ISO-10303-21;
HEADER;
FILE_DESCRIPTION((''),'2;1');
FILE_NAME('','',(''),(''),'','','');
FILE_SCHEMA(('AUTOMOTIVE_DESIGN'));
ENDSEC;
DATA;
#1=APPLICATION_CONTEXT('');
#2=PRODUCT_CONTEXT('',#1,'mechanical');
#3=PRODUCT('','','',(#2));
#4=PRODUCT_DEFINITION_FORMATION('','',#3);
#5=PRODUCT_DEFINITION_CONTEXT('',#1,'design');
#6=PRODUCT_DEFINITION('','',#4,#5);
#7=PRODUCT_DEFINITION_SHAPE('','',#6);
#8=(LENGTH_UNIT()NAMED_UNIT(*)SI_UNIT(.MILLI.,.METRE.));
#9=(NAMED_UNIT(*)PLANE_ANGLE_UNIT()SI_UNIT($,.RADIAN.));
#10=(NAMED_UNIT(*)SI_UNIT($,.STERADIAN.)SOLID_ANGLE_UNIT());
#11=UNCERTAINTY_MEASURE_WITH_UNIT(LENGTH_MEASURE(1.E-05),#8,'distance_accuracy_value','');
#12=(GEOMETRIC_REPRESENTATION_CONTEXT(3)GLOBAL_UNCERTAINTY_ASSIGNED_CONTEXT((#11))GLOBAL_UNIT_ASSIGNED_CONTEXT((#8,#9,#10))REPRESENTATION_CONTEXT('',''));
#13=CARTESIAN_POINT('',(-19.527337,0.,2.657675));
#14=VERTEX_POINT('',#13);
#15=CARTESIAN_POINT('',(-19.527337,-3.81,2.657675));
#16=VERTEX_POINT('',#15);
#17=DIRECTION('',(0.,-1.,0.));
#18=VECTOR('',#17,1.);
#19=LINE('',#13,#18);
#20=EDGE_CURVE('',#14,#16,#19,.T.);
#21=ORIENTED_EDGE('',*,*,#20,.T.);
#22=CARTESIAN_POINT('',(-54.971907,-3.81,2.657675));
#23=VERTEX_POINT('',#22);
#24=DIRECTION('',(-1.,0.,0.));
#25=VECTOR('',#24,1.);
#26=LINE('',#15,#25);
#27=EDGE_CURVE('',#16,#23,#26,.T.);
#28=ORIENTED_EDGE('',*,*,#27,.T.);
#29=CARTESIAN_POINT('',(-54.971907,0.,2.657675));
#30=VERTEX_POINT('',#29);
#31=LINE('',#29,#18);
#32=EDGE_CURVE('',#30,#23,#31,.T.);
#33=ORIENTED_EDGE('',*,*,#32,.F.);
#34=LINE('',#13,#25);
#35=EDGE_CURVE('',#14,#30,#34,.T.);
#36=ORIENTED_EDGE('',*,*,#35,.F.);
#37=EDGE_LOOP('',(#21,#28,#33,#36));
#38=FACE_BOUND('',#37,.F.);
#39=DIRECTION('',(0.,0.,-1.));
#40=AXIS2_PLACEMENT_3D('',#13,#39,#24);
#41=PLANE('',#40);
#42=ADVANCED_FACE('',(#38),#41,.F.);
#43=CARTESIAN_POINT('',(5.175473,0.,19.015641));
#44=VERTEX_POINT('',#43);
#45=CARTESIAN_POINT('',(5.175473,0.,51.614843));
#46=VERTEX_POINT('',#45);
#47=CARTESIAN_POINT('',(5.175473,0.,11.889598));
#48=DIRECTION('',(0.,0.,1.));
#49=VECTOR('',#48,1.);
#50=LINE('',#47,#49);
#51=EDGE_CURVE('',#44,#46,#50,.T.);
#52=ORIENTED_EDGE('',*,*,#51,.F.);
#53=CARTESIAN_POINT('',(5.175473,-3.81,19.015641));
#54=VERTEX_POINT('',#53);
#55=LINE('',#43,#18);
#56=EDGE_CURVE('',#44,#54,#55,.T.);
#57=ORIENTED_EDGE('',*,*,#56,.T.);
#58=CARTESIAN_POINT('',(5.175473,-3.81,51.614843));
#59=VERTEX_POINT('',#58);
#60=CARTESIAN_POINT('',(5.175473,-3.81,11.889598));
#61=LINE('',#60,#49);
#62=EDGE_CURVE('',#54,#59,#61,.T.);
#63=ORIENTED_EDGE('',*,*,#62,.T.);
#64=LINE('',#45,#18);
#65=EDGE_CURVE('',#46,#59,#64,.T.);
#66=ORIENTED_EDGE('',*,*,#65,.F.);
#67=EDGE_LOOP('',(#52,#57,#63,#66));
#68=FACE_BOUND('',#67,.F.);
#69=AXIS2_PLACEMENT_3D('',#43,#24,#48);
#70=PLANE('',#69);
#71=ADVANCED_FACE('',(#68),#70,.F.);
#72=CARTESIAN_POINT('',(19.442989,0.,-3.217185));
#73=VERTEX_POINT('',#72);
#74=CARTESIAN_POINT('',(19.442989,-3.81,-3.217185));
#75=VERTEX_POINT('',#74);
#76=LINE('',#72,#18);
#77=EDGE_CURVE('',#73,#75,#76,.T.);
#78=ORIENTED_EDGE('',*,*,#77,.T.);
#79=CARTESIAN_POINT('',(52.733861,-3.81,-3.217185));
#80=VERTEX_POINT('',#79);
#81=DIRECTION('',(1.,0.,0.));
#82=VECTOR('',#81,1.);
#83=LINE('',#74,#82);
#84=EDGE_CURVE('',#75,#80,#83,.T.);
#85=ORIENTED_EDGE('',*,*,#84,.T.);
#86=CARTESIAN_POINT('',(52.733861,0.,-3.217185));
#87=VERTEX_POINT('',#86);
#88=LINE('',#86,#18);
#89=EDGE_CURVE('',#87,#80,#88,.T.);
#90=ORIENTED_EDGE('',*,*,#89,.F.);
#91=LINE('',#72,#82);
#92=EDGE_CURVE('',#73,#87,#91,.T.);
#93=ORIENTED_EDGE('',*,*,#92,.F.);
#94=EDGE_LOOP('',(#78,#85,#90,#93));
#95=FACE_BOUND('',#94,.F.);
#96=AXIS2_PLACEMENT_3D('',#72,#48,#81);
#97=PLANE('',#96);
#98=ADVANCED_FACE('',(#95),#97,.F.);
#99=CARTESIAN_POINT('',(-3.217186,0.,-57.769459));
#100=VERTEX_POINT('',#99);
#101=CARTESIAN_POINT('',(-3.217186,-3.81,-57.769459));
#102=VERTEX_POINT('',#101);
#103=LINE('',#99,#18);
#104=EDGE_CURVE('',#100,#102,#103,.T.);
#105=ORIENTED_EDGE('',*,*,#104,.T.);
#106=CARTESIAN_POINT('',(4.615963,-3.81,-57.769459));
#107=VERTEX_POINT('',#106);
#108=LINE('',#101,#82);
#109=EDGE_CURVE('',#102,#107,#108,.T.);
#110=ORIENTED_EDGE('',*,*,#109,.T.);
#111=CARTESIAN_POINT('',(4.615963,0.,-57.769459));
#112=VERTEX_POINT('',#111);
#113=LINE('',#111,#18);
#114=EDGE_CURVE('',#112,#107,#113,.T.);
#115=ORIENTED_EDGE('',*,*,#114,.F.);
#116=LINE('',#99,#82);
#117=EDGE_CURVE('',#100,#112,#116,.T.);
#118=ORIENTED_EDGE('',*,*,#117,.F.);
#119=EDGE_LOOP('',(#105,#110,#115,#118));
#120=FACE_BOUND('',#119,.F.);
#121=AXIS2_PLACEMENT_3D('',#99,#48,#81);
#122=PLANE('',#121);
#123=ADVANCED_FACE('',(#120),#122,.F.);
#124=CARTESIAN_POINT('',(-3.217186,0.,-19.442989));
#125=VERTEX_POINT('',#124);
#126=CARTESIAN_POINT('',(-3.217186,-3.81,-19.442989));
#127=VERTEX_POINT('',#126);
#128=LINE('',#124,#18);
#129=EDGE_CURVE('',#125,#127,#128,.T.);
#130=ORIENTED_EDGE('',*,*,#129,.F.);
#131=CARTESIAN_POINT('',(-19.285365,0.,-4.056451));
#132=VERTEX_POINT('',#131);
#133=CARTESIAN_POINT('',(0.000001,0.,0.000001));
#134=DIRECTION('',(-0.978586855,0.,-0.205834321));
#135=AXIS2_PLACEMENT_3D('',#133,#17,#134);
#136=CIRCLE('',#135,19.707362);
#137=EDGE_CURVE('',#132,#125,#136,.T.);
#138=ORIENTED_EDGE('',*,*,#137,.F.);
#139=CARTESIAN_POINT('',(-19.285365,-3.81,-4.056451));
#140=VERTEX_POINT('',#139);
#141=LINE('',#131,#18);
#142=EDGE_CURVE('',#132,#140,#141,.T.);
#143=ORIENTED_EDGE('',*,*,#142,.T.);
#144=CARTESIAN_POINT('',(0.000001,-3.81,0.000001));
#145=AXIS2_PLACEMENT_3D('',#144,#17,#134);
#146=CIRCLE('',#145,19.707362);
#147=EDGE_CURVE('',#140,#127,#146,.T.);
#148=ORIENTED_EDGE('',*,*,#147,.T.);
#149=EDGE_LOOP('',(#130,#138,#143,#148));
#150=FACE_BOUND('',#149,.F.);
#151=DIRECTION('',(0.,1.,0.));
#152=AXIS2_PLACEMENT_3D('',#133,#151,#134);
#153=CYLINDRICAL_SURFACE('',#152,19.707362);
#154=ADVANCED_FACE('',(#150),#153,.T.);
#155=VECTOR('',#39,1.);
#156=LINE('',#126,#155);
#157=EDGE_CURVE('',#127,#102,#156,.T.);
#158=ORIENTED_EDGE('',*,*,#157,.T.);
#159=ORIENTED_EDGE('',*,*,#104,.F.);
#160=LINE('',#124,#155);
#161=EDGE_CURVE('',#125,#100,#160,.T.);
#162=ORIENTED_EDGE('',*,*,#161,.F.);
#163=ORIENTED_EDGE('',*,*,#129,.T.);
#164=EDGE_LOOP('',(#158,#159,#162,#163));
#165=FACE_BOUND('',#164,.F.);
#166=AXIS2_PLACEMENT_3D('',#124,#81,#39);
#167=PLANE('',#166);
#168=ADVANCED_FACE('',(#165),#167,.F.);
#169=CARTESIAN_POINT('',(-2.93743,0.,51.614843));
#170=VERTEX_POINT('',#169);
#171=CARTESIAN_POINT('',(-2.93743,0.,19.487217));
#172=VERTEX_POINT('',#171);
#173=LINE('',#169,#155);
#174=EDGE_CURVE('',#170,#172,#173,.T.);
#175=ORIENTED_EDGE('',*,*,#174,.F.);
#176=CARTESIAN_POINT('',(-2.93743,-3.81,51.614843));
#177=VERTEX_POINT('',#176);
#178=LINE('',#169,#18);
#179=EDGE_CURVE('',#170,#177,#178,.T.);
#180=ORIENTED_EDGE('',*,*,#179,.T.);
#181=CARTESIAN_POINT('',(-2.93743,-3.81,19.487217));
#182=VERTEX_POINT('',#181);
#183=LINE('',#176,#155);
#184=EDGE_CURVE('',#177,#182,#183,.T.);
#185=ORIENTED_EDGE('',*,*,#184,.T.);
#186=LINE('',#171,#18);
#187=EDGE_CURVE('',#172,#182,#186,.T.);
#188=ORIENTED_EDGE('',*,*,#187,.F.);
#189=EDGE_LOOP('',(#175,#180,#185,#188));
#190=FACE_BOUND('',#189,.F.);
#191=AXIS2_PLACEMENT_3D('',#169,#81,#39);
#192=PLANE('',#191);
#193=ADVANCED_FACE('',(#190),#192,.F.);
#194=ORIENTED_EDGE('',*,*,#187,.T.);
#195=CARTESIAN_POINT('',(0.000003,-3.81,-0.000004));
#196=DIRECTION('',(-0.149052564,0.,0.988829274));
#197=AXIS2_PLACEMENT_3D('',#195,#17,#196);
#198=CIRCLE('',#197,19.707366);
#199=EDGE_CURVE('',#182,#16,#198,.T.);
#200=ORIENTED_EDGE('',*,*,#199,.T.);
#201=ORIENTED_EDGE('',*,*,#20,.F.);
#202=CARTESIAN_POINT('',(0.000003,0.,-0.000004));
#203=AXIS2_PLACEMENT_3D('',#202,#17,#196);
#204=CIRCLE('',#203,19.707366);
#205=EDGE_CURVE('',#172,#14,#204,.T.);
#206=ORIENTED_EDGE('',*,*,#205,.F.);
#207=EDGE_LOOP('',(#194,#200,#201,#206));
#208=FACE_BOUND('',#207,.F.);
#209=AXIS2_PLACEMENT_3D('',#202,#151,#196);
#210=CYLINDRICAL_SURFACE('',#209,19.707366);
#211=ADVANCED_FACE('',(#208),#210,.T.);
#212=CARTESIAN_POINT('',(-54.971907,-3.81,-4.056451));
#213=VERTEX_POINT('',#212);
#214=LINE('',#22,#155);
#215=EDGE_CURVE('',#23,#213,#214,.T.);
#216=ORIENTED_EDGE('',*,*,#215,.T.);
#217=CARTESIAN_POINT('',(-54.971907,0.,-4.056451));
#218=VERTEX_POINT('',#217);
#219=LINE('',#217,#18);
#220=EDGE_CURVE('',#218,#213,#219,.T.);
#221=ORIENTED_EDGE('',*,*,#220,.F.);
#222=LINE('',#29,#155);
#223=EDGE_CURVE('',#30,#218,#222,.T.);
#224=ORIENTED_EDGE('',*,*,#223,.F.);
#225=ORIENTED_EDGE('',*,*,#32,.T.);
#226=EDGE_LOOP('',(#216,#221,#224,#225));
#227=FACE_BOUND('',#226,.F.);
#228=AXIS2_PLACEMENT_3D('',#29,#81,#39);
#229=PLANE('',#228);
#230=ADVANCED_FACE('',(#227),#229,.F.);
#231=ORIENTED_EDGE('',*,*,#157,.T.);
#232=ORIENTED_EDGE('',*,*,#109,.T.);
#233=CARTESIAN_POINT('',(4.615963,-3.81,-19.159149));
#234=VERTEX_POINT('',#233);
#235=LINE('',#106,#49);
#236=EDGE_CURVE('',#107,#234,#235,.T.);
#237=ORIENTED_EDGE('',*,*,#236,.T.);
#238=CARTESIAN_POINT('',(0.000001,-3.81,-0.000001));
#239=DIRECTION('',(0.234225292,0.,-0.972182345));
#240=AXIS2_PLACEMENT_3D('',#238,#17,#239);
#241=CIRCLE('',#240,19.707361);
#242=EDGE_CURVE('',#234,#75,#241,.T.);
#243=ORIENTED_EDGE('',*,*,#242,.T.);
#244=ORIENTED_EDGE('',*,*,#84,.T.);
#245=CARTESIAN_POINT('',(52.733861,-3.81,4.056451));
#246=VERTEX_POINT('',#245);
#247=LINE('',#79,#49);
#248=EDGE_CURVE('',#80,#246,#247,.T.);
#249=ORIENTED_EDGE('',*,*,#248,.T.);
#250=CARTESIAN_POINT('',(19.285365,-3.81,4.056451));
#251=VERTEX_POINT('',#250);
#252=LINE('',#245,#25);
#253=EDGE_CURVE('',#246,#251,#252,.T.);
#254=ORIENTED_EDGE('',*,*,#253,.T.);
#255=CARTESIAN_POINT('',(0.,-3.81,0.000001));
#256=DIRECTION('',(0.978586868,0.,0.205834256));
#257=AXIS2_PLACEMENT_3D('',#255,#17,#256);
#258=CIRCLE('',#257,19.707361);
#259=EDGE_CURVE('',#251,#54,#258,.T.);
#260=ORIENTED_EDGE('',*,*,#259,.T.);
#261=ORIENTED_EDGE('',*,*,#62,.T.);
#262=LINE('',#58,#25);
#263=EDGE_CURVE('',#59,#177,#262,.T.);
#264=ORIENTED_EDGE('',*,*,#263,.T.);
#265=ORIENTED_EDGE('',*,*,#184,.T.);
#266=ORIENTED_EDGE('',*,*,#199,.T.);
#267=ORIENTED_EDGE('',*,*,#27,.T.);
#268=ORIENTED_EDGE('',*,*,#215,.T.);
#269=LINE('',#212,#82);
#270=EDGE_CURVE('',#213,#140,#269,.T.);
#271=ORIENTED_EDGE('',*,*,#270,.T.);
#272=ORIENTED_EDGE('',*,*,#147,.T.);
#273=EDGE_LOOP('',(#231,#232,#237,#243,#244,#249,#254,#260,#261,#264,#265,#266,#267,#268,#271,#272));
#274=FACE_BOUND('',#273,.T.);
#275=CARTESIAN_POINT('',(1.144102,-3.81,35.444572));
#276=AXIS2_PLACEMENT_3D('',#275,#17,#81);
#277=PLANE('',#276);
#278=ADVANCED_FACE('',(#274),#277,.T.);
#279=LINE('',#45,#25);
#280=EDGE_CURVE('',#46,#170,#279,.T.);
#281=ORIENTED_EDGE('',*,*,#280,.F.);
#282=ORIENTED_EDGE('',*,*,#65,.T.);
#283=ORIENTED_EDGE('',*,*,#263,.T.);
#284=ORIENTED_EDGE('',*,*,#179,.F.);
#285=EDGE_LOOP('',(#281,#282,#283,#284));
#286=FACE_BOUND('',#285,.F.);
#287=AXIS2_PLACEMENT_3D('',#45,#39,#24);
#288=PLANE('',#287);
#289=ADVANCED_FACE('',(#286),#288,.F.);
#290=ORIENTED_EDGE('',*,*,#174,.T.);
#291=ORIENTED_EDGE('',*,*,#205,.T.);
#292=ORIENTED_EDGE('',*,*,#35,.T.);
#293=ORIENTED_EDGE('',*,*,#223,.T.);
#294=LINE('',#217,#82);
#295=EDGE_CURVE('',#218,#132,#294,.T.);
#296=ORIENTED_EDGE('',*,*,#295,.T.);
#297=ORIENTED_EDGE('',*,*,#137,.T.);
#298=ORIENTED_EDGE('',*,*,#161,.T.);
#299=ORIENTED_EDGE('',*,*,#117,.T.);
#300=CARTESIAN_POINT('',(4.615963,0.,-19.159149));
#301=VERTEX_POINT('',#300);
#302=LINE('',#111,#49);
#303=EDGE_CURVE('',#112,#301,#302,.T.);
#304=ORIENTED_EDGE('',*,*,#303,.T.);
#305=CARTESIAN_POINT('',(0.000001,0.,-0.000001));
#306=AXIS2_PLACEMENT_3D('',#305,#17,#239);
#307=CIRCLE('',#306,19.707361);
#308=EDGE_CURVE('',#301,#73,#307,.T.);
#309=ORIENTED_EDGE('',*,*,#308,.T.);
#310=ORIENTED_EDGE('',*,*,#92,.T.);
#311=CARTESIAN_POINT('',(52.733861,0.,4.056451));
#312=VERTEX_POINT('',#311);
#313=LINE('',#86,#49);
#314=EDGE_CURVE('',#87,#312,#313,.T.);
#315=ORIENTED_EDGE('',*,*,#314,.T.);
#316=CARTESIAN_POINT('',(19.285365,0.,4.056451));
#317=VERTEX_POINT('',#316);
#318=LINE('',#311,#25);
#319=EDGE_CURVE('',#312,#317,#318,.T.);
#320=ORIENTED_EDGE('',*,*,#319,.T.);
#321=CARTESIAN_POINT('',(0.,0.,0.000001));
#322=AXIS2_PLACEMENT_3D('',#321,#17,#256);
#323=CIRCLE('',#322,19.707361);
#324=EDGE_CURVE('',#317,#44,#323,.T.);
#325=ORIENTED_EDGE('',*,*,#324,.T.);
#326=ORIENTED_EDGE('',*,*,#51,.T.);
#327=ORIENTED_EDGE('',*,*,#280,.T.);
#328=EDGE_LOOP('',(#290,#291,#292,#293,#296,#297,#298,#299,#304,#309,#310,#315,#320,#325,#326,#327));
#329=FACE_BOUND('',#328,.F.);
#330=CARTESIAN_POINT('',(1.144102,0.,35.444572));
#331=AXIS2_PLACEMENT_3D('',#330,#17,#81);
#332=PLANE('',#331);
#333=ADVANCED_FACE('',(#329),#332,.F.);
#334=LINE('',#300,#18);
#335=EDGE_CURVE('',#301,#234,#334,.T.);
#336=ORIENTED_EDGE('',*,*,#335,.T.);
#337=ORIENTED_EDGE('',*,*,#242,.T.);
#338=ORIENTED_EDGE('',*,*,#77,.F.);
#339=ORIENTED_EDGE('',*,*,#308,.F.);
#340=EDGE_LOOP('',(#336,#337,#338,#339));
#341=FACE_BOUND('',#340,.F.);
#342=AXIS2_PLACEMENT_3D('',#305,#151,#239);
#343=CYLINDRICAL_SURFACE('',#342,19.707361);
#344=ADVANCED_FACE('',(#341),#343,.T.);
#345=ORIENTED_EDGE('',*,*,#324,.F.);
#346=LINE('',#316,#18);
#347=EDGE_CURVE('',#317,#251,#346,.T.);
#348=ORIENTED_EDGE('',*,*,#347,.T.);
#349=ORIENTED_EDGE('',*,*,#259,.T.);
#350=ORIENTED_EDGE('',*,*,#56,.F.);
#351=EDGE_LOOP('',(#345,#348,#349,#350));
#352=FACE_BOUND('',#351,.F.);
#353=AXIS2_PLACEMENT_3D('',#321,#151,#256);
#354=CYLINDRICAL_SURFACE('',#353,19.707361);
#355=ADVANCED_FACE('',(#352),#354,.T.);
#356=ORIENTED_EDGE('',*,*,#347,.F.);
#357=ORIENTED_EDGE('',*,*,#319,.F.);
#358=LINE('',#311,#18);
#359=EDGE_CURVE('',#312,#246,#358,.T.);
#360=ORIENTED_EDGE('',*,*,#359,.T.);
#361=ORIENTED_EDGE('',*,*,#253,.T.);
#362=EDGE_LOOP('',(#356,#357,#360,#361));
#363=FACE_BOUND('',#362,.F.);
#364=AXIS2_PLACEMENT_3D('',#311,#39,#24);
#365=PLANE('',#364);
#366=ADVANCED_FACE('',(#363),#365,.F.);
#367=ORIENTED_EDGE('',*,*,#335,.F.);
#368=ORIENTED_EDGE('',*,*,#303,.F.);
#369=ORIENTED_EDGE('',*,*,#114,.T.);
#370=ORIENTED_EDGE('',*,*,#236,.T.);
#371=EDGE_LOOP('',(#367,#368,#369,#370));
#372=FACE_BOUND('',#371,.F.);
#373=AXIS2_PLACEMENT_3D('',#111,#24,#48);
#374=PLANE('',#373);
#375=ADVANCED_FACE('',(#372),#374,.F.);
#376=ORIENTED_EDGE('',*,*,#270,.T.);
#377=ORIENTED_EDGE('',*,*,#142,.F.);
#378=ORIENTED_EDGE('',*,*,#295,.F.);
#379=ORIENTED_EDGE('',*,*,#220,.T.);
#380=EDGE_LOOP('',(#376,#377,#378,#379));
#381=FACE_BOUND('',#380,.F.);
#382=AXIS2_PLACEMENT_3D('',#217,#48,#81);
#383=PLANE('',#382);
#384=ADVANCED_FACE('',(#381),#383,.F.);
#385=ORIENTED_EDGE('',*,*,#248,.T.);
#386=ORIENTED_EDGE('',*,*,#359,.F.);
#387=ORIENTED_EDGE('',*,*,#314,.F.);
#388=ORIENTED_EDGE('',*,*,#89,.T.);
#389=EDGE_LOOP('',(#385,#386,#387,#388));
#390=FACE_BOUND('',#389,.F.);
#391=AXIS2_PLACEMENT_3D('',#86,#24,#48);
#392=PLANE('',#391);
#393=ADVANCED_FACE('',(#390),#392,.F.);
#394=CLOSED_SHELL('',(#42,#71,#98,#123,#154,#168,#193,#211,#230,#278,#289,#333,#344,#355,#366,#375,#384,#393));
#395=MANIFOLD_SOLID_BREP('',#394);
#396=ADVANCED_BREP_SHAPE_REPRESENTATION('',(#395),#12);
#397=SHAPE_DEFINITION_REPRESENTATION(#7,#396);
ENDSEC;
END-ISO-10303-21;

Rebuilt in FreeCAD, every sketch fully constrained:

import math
import FreeCAD as App
import Part
import Sketcher
from FreeCAD import Vector
Q = App.Units.Quantity

doc = App.newDocument("Part")
body = doc.addObject("PartDesign::Body", "Body")

# Sketch on XZ plane
sketch1 = body.newObject("Sketcher::SketchObject", "Sketch")
sketch1.AttachmentSupport = (doc.getObject("XZ_Plane"), [""])
sketch1.MapMode = "FlatFace"
sketch1.addGeometry(Part.LineSegment(Vector(5, 52, 0), Vector(-3, 52, 0)), False)
sketch1.addGeometry(Part.LineSegment(Vector(-3, 52, 0), Vector(-3, 19, 0)), False)
sketch1.addGeometry(Part.ArcOfCircle(Part.Circle(Vector(0, 0, 0), Vector(0, 0, 1), 20), math.radians(99), math.radians(172)), False)
sketch1.addGeometry(Part.LineSegment(Vector(-20, 3, 0), Vector(-55, 3, 0)), False)
sketch1.addGeometry(Part.LineSegment(Vector(-55, 3, 0), Vector(-55, -4, 0)), False)
sketch1.addGeometry(Part.LineSegment(Vector(-55, -4, 0), Vector(-19, -4, 0)), False)
sketch1.addGeometry(Part.ArcOfCircle(Part.Circle(Vector(0, 0, 0), Vector(0, 0, 1), 20), math.radians(-168), math.radians(-99)), False)
sketch1.addGeometry(Part.LineSegment(Vector(-3, -19, 0), Vector(-3, -58, 0)), False)
sketch1.addGeometry(Part.LineSegment(Vector(-3, -58, 0), Vector(5, -58, 0)), False)
sketch1.addGeometry(Part.LineSegment(Vector(5, -58, 0), Vector(5, -19, 0)), False)
sketch1.addGeometry(Part.ArcOfCircle(Part.Circle(Vector(0, 0, 0), Vector(0, 0, 1), 20), math.radians(-76), math.radians(-9)), False)
sketch1.addGeometry(Part.LineSegment(Vector(19, -3, 0), Vector(53, -3, 0)), False)
sketch1.addGeometry(Part.LineSegment(Vector(53, -3, 0), Vector(53, 4, 0)), False)
sketch1.addGeometry(Part.LineSegment(Vector(53, 4, 0), Vector(19, 4, 0)), False)
sketch1.addGeometry(Part.ArcOfCircle(Part.Circle(Vector(0, 0, 0), Vector(0, 0, 1), 20), math.radians(12), math.radians(75)), False)
sketch1.addGeometry(Part.LineSegment(Vector(5, 19, 0), Vector(5, 52, 0)), False)
sketch1.addConstraint(Sketcher.Constraint("Coincident", 0, 2, 1, 1))
sketch1.addConstraint(Sketcher.Constraint("Coincident", 1, 2, 2, 1))
sketch1.addConstraint(Sketcher.Constraint("Coincident", 2, 2, 3, 1))
sketch1.addConstraint(Sketcher.Constraint("Coincident", 3, 2, 4, 1))
sketch1.addConstraint(Sketcher.Constraint("Coincident", 4, 2, 5, 1))
sketch1.addConstraint(Sketcher.Constraint("Coincident", 5, 2, 6, 1))
sketch1.addConstraint(Sketcher.Constraint("Coincident", 6, 2, 7, 1))
sketch1.addConstraint(Sketcher.Constraint("Coincident", 7, 2, 8, 1))
sketch1.addConstraint(Sketcher.Constraint("Coincident", 8, 2, 9, 1))
sketch1.addConstraint(Sketcher.Constraint("Coincident", 9, 2, 10, 1))
sketch1.addConstraint(Sketcher.Constraint("Coincident", 10, 2, 11, 1))
sketch1.addConstraint(Sketcher.Constraint("Coincident", 11, 2, 12, 1))
sketch1.addConstraint(Sketcher.Constraint("Coincident", 12, 2, 13, 1))
sketch1.addConstraint(Sketcher.Constraint("Coincident", 13, 2, 14, 1))
sketch1.addConstraint(Sketcher.Constraint("Coincident", 14, 2, 15, 1))
sketch1.addConstraint(Sketcher.Constraint("Coincident", 15, 2, 0, 1))
sketch1.addConstraint(Sketcher.Constraint("Horizontal", 0))
sketch1.addConstraint(Sketcher.Constraint("Vertical", 1))
sketch1.addConstraint(Sketcher.Constraint("Horizontal", 3))
sketch1.addConstraint(Sketcher.Constraint("Vertical", 4))
sketch1.addConstraint(Sketcher.Constraint("Horizontal", 5))
sketch1.addConstraint(Sketcher.Constraint("Vertical", 7))
sketch1.addConstraint(Sketcher.Constraint("Horizontal", 8))
sketch1.addConstraint(Sketcher.Constraint("Vertical", 9))
sketch1.addConstraint(Sketcher.Constraint("Horizontal", 11))
sketch1.addConstraint(Sketcher.Constraint("Vertical", 12))
sketch1.addConstraint(Sketcher.Constraint("Horizontal", 13))
sketch1.addConstraint(Sketcher.Constraint("Vertical", 15))
sketch1.addConstraint(Sketcher.Constraint("Coincident", 2, 3, -1, 1))
sketch1.addConstraint(Sketcher.Constraint("Coincident", 6, 3, -1, 1))
sketch1.addConstraint(Sketcher.Constraint("Coincident", 10, 3, -1, 1))
sketch1.addConstraint(Sketcher.Constraint("Coincident", 14, 3, -1, 1))
sketch1.addConstraint(Sketcher.Constraint("Equal", 6, 10))
sketch1.addConstraint(Sketcher.Constraint("Equal", 10, 14))
sketch1.addConstraint(Sketcher.Constraint("Radius", 10, Q("19.707361 mm")))
sketch1.addConstraint(Sketcher.Constraint("Radius", 2, Q("19.707366 mm")))
sketch1.addConstraint(Sketcher.Constraint("DistanceX", 3, 2, 3, 1, Q("35.44457 mm")))
sketch1.addConstraint(Sketcher.Constraint("DistanceX", 8, 1, 8, 2, Q("7.833149 mm")))
sketch1.addConstraint(Sketcher.Constraint("DistanceX", 11, 1, 11, 2, Q("33.290872 mm")))
sketch1.addConstraint(Sketcher.Constraint("DistanceY", 7, 2, 7, 1, Q("38.32647 mm")))
sketch1.addConstraint(Sketcher.Constraint("DistanceY", 9, 1, 9, 2, Q("38.61031 mm")))
sketch1.addConstraint(Sketcher.Constraint("DistanceY", 14, 2, 15, 2, Q("32.599202 mm")))
sketch1.addConstraint(Sketcher.Constraint("DistanceX", 0, 2, 0, 1, Q("8.112903 mm")))
sketch1.addConstraint(Sketcher.Constraint("DistanceX", 5, 1, 5, 2, Q("35.686542 mm")))
sketch1.addConstraint(Sketcher.Constraint("DistanceX", 13, 2, 13, 1, Q("33.448496 mm")))
sketch1.addConstraint(Sketcher.Constraint("DistanceY", 1, 2, 1, 1, Q("32.127626 mm")))
sketch1.addConstraint(Sketcher.Constraint("DistanceY", 4, 2, 4, 1, Q("6.714126 mm")))
sketch1.addConstraint(Sketcher.Constraint("DistanceY", 12, 1, 12, 2, Q("7.273636 mm")))
pad1 = body.newObject("PartDesign::Pad", "Pad")
pad1.Profile = sketch1
pad1.Length = Q("0.15 in")

doc.recompute()
